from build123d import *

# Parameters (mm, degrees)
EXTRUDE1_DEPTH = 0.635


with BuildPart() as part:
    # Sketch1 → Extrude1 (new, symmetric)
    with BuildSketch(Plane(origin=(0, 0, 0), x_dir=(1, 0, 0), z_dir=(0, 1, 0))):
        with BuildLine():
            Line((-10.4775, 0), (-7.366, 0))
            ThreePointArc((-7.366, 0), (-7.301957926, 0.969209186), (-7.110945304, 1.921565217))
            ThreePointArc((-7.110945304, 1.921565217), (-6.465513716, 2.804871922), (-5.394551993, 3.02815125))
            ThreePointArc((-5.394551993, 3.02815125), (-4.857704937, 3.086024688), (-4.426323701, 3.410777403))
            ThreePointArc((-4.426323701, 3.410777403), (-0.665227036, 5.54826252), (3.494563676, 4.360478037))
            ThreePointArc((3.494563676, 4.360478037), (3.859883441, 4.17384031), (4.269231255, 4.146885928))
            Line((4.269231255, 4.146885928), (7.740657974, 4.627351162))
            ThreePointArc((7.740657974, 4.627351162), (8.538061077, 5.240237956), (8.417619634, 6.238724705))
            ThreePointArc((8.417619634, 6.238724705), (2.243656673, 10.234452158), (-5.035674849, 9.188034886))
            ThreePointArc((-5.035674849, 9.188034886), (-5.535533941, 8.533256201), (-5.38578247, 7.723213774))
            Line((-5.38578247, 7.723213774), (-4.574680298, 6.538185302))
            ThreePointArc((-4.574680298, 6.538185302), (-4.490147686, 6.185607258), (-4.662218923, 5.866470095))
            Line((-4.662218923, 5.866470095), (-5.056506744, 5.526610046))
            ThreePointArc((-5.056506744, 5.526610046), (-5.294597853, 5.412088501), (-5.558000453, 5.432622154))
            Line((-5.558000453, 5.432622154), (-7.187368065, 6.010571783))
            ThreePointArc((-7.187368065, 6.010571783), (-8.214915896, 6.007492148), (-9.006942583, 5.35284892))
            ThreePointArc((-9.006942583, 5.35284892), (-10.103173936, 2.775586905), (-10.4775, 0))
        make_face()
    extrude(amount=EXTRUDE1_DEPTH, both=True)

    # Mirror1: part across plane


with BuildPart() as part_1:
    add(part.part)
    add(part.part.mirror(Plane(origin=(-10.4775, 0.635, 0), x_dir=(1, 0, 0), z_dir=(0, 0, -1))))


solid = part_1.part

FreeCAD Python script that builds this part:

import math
import FreeCAD as App
import Part
import Sketcher
Q = App.Units.Quantity

doc = App.newDocument("Part")
body = doc.addObject("PartDesign::Body", "Body")

sketch1 = body.newObject("Sketcher::SketchObject", "Sketch")
sketch1.AttachmentSupport = (doc.getObject("XZ_Plane"), [""])
sketch1.MapMode = "FlatFace"
sketch1.addGeometry(Part.LineSegment(App.Vector(-10.5, 0, 0), App.Vector(-7.4, 0, 0)), False)
sketch1.addGeometry(Part.ArcOfCircle(Part.Circle(App.Vector(0, 0, 0), App.Vector(0, 0, 1), 7.4), math.radians(-180), math.radians(-164.88)), False)
sketch1.addGeometry(Part.ArcOfCircle(Part.Circle(App.Vector(-5.6, -1.5, 0), App.Vector(0, 0, 1), 1.5), math.radians(-165), math.radians(-81)), False)
sketch1.addGeometry(Part.ArcOfCircle(Part.Circle(App.Vector(-5.2, -4, 0), App.Vector(0, 0, 1), 1), math.radians(38), math.radians(99)), False)
sketch1.addGeometry(Part.ArcOfCircle(Part.Circle(App.Vector(0, 0, 0), App.Vector(0, 0, 1), 5.6), math.radians(-142), math.radians(-51)), False)
sketch1.addGeometry(Part.ArcOfCircle(Part.Circle(App.Vector(4.1, -5.2, 0), App.Vector(0, 0, 1), 1), math.radians(82), math.radians(129)), False)
sketch1.addGeometry(Part.LineSegment(App.Vector(4.3, -4.1, 0), App.Vector(7.7, -4.6, 0)), False)
sketch1.addGeometry(Part.ArcOfCircle(Part.Circle(App.Vector(7.6, -5.6, 0), App.Vector(0, 0, 1), 1), math.radians(-37), math.radians(82)), False)
sketch1.addGeometry(Part.ArcOfCircle(Part.Circle(App.Vector(0, 0, 0), App.Vector(0, 0, 1), 10.5), math.radians(-119), math.radians(-37)), False)
sketch1.addGeometry(Part.ArcOfCircle(Part.Circle(App.Vector(-4.5, -8.3, 0), App.Vector(0, 0, 1), 1), math.radians(146), math.radians(241)), False)
sketch1.addGeometry(Part.LineSegment(App.Vector(-5.4, -7.7, 0), App.Vector(-4.6, -6.5, 0)), False)
sketch1.addGeometry(Part.ArcOfCircle(Part.Circle(App.Vector(-5, -6.3, 0), App.Vector(0, 0, 1), 0.5), math.radians(-34), math.radians(49)), False)
sketch1.addGeometry(Part.LineSegment(App.Vector(-4.7, -5.9, 0), App.Vector(-5.1, -5.5, 0)), False)
sketch1.addGeometry(Part.ArcOfCircle(Part.Circle(App.Vector(-5.4, -5.9, 0), App.Vector(0, 0, 1), 0.5), math.radians(49), math.radians(110)), False)
sketch1.addGeometry(Part.LineSegment(App.Vector(-5.6, -5.4, 0), App.Vector(-7.2, -6, 0)), False)
sketch1.addGeometry(Part.ArcOfCircle(Part.Circle(App.Vector(-7.7, -4.6, 0), App.Vector(0, 0, 1), 1.5), math.radians(-149), math.radians(-70)), False)
sketch1.addGeometry(Part.ArcOfCircle(Part.Circle(App.Vector(0, 0, 0), App.Vector(0, 0, 1), 10.5), math.radians(-180), math.radians(-149)), False)
sketch1.addConstraint(Sketcher.Constraint("Coincident", 0, 2, 1, 1))
sketch1.addConstraint(Sketcher.Constraint("Tangent", 1, 2, 2, 1))
sketch1.addConstraint(Sketcher.Constraint("Tangent", 2, 2, 3, 2))
sketch1.addConstraint(Sketcher.Constraint("Tangent", 3, 1, 4, 1))
sketch1.addConstraint(Sketcher.Constraint("Tangent", 4, 2, 5, 2))
sketch1.addConstraint(Sketcher.Constraint("Tangent", 5, 1, 6, 1))
sketch1.addConstraint(Sketcher.Constraint("Tangent", 6, 2, 7, 2))
sketch1.addConstraint(Sketcher.Constraint("Tangent", 7, 1, 8, 2))
sketch1.addConstraint(Sketcher.Constraint("Tangent", 8, 1, 9, 2))
sketch1.addConstraint(Sketcher.Constraint("Tangent", 9, 1, 10, 1))
sketch1.addConstraint(Sketcher.Constraint("Tangent", 10, 2, 11, 1))
sketch1.addConstraint(Sketcher.Constraint("Tangent", 11, 2, 12, 1))
sketch1.addConstraint(Sketcher.Constraint("Tangent", 12, 2, 13, 1))
sketch1.addConstraint(Sketcher.Constraint("Tangent", 13, 2, 14, 1))
sketch1.addConstraint(Sketcher.Constraint("Tangent", 14, 2, 15, 2))
sketch1.addConstraint(Sketcher.Constraint("Tangent", 15, 1, 16, 2))
sketch1.addConstraint(Sketcher.Constraint("Coincident", 16, 1, 0, 1))
sketch1.addConstraint(Sketcher.Constraint("Horizontal", 0))
sketch1.addConstraint(Sketcher.Constraint("Coincident", 1, 3, -1, 1))
sketch1.addConstraint(Sketcher.Constraint("Coincident", 4, 3, -1, 1))
sketch1.addConstraint(Sketcher.Constraint("Coincident", 8, 3, -1, 1))
sketch1.addConstraint(Sketcher.Constraint("Coincident", 16, 3, -1, 1))
sketch1.addConstraint(Sketcher.Constraint("Equal", 3, 5))
sketch1.addConstraint(Sketcher.Constraint("Equal", 5, 7))
sketch1.addConstraint(Sketcher.Constraint("Equal", 7, 9))
sketch1.addConstraint(Sketcher.Constraint("Equal", 11, 13))
sketch1.addConstraint(Sketcher.Constraint("Equal", 2, 15))
sketch1.addConstraint(Sketcher.Constraint("Equal", 8, 16))
sketch1.addConstraint(Sketcher.Constraint("PointOnObject", 0, 2, -1))
sketch1.addConstraint(Sketcher.Constraint("Radius", 1, Q("0.29 in")))
sketch1.addConstraint(Sketcher.Constraint("Radius", 2, Q("0.06 in")))
sketch1.addConstraint(Sketcher.Constraint("Radius", 3, Q("0.04 in")))
sketch1.addConstraint(Sketcher.Constraint("Radius", 4, Q("0.22 in")))
sketch1.addConstraint(Sketcher.Constraint("Radius", 11, Q("0.02 in")))
sketch1.addConstraint(Sketcher.Constraint("Radius", 8, Q("0.4125 in")))
sketch1.addConstraint(Sketcher.Constraint("DistanceY", 2, 3, -1, 1, Q("0.06 in")))
sketch1.addConstraint(Sketcher.Constraint("Angle", 6, Q("-7.88 deg")))
sketch1.addConstraint(Sketcher.Constraint("Angle", 10, Q("55.61 deg")))
sketch1.addConstraint(Sketcher.Constraint("Angle", 12, Q("139.24 deg")))
sketch1.addConstraint(Sketcher.Constraint("Angle", 14, Q("-160.47 deg")))
sketch1.addConstraint(Sketcher.Constraint("DistanceY", 9, 1, 11, 2, Q("0.0731001 in")))
sketch1.addConstraint(Sketcher.Constraint("DistanceX", 13, 2, -1, 1, 5.558))
sketch1.addConstraint(Sketcher.Constraint("DistanceY", 15, 3, 2, 2, 1.546101))
sketch1.addConstraint(Sketcher.Constraint("DistanceX", 4, 2, 7, 3, 4.106802))
pad1 = body.newObject("PartDesign::Pad", "Pad")
pad1.Profile = sketch1
pad1.Length = Q("0.05 in")
pad1.Midplane = True
body2 = doc.addObject("PartDesign::Body", "Body001")
doc.recompute()

body2.BaseFeature = body
doc.recompute()

mirroring = doc.addObject("Part::Mirroring", "Mirroring")
mirroring.Source = body
mirroring.Base = App.Vector(-10.4775, 0.635, 0)
mirroring.Normal = App.Vector(0, 0, -1)
body3 = doc.addObject("PartDesign::Body", "Body002")
body3.BaseFeature = mirroring
boolean = body2.newObject("PartDesign::Boolean", "Boolean")
boolean.Type = "Fuse"
boolean.addObjects([body3])
doc.recompute()
mirroring.Visibility = False

doc.recompute()
